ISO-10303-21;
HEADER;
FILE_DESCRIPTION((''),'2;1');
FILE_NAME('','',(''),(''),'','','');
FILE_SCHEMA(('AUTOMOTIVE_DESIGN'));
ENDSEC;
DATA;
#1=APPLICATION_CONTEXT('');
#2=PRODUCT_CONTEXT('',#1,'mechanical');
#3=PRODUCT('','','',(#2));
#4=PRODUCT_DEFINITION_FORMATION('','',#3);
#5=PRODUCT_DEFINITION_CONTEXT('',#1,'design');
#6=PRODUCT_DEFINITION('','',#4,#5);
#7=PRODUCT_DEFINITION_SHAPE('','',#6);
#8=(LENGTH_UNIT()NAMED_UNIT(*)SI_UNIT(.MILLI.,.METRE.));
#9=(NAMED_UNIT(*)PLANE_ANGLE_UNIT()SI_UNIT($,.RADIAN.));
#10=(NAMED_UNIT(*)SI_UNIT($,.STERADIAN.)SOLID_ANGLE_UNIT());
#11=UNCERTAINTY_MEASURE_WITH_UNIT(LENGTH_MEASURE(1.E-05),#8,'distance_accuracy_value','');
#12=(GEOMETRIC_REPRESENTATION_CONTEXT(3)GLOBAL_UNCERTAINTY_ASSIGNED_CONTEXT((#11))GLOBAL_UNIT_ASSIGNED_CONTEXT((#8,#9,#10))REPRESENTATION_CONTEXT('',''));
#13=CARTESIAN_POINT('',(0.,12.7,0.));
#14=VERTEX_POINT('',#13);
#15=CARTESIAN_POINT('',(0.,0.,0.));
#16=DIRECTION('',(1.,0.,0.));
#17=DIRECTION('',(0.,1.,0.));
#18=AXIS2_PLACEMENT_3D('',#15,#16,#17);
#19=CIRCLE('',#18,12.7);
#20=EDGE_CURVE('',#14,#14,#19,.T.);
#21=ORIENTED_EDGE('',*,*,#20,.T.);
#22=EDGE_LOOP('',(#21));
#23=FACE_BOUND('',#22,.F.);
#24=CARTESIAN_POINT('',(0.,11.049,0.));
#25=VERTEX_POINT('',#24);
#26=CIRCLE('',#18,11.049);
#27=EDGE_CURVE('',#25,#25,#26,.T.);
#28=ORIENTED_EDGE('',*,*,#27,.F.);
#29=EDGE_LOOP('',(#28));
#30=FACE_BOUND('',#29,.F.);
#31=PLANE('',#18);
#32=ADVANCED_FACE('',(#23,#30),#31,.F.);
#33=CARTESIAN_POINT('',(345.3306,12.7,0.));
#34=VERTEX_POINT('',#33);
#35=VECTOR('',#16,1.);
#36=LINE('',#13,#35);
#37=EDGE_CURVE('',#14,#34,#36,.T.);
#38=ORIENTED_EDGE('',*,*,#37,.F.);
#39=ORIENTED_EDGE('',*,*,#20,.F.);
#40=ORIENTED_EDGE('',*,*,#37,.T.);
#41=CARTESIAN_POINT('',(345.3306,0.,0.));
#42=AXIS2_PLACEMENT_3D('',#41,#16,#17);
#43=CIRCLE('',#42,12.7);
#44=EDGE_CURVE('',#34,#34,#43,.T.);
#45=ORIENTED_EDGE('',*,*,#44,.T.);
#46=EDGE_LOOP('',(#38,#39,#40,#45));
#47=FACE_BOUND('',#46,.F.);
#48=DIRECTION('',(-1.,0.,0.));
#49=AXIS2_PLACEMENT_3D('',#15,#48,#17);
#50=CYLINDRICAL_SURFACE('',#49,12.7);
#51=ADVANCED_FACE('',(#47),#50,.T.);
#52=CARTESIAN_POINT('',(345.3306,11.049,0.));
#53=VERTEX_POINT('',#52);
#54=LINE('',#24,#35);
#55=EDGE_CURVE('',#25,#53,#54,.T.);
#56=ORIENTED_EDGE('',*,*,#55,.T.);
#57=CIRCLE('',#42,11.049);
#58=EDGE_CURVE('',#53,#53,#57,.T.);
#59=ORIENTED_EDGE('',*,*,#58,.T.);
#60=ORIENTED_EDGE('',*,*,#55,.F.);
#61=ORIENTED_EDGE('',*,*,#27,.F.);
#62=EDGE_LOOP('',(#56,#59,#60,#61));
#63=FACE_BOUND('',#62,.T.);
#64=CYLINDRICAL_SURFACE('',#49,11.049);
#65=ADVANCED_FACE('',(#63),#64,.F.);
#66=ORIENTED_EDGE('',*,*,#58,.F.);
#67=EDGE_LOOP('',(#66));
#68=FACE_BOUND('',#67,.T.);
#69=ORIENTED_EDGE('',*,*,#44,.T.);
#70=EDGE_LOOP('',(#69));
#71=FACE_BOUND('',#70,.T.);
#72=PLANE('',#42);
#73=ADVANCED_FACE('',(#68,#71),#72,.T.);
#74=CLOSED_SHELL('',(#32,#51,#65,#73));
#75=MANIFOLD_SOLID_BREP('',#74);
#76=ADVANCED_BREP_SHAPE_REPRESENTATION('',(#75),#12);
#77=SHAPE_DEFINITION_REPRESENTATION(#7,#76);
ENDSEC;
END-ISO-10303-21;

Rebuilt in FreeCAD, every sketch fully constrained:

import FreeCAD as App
import Part
import Sketcher
Q = App.Units.Quantity

doc = App.newDocument("Part")
body = doc.addObject("PartDesign::Body", "Body")

sketch1 = body.newObject("Sketcher::SketchObject", "Sketch")
sketch1.AttachmentSupport = (doc.getObject("YZ_Plane"), [""])
sketch1.MapMode = "FlatFace"
sketch1.addGeometry(Part.Circle(App.Vector(0, 0, 0), App.Vector(0, 0, 1), 13), False)
sketch1.addGeometry(Part.Circle(App.Vector(0, 0, 0), App.Vector(0, 0, 1), 11), False)
sketch1.addConstraint(Sketcher.Constraint("Coincident", 0, 3, -1, 1))
sketch1.addConstraint(Sketcher.Constraint("Coincident", 1, 3, -1, 1))
sketch1.addConstraint(Sketcher.Constraint("Diameter", 0, Q("1 in")))
sketch1.addConstraint(Sketcher.Constraint("Diameter", 1, Q("0.87 in")))
pad1 = body.newObject("PartDesign::Pad", "Pad")
pad1.Profile = sketch1
pad1.Length = Q("13.5956929 in")

doc.recompute()
